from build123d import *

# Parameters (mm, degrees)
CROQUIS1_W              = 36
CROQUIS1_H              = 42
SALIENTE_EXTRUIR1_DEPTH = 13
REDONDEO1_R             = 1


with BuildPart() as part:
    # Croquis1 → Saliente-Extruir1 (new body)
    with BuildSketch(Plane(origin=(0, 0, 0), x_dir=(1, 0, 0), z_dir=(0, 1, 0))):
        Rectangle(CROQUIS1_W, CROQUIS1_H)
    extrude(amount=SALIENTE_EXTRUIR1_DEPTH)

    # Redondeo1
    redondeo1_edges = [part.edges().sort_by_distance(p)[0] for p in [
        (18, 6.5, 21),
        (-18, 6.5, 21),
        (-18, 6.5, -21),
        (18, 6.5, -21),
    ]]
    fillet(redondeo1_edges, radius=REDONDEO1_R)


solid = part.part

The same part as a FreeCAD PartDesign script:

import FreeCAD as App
import Part
import Sketcher


def edges_at(feature, points):
    """Names of the edges that pass closest to the given points."""
    edges = feature.Shape.Edges
    near = lambda p: min(range(len(edges)), key=lambda i: edges[i].distToShape(Part.Vertex(*p))[0])
    return sorted({f"Edge{near(p) + 1}" for p in points})


def add_polygon(sketch, points):
    """Adds a closed chain of lines whose ends are joined by coincident constraints."""
    first, n = sketch.GeometryCount, len(points)
    for a, b in zip(points, points[1:] + points[:1]):
        sketch.addGeometry(Part.LineSegment(App.Vector(*a, 0), App.Vector(*b, 0)), False)
    for i in range(n):
        sketch.addConstraint(Sketcher.Constraint("Coincident", first + i, 2, first + (i + 1) % n, 1))

doc = App.newDocument("Part")
body = doc.addObject("PartDesign::Body", "Body")

# Sketch on XZ plane
sketch1 = body.newObject("Sketcher::SketchObject", "Sketch")
sketch1.AttachmentSupport = (doc.getObject("XZ_Plane"), [""])
sketch1.MapMode = "FlatFace"
add_polygon(sketch1, [(-18, -21), (-18, 21), (18, 21), (18, -21)])  # lines 0-3
sketch1.addConstraint(Sketcher.Constraint("Vertical", 0))
sketch1.addConstraint(Sketcher.Constraint("Horizontal", 1))
sketch1.addConstraint(Sketcher.Constraint("Vertical", 2))
sketch1.addConstraint(Sketcher.Constraint("Horizontal", 3))
sketch1.addConstraint(Sketcher.Constraint("Symmetric", 0, 2, 2, 2, -1, 1))
sketch1.addConstraint(Sketcher.Constraint("DistanceX", 1, 1, 1, 2, 36.0))
sketch1.addConstraint(Sketcher.Constraint("DistanceY", 0, 1, 0, 2, 42.0))
pad1 = body.newObject("PartDesign::Pad", "Pad")
pad1.Profile = sketch1
pad1.Length = 13
pad1.Reversed = True
doc.recompute()

fillet = body.newObject("PartDesign::Fillet", "Fillet")
fillet.Base = (pad1, edges_at(pad1, [
    (18, 6.5, 21),
    (-18, 6.5, 21),
    (-18, 6.5, -21),
    (18, 6.5, -21),
]))
fillet.Radius = 1

doc.recompute()
